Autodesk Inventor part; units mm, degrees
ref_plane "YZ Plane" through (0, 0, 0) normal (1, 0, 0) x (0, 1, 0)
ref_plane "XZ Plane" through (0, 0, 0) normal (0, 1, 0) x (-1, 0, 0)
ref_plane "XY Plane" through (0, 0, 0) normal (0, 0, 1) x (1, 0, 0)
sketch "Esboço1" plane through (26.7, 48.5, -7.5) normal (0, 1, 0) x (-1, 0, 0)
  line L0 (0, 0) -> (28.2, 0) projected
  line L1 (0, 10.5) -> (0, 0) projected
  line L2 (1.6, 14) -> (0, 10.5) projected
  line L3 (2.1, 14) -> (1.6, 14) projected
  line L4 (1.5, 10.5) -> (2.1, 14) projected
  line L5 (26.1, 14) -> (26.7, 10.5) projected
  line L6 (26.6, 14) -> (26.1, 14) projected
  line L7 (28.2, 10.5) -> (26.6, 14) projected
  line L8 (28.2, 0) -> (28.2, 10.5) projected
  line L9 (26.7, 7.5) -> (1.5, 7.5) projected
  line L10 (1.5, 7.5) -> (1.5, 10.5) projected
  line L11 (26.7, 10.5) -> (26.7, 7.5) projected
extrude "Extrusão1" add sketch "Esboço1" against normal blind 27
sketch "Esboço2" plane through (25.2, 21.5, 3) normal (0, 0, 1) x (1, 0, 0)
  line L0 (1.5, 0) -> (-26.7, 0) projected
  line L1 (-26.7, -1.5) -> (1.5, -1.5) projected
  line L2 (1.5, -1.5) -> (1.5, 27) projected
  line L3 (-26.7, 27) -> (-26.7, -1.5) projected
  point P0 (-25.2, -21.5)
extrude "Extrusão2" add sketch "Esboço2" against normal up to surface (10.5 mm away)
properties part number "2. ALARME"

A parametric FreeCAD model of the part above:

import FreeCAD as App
import Part
import Sketcher

doc = App.newDocument("Part")
body = doc.addObject("PartDesign::Body", "Body")

# Sketch on XZ plane
sketch1 = doc.addObject("Sketcher::SketchObject", "Sketch")
body.addObject(sketch1)
sketch1.AttachmentSupport = (doc.XZ_Plane, [""])
sketch1.MapMode = "FlatFace"
sketch1.AttachmentOffset = App.Placement(App.Vector(0, 0, -48.5), App.Rotation())
sketch1.addGeometry(Part.LineSegment(App.Vector(26.7, 3, 0), App.Vector(26.7, -7.5, 0)), False)
sketch1.addGeometry(Part.LineSegment(App.Vector(26.7, -7.5, 0), App.Vector(-1.5, -7.5, 0)), False)
sketch1.addGeometry(Part.LineSegment(App.Vector(-1.5, -7.5, 0), App.Vector(-1.5, 3, 0)), False)
sketch1.addGeometry(Part.LineSegment(App.Vector(-1.5, 3, 0), App.Vector(0.1, 6.5, 0)), False)
sketch1.addGeometry(Part.LineSegment(App.Vector(0.1, 6.5, 0), App.Vector(0.6, 6.5, 0)), False)
sketch1.addGeometry(Part.LineSegment(App.Vector(0.6, 6.5, 0), App.Vector(0, 3, 0)), False)
sketch1.addGeometry(Part.LineSegment(App.Vector(0, 3, 0), App.Vector(0, 0, 0)), False)
sketch1.addGeometry(Part.LineSegment(App.Vector(0, 0, 0), App.Vector(25.2, 0, 0)), False)
sketch1.addGeometry(Part.LineSegment(App.Vector(25.2, 0, 0), App.Vector(25.2, 3, 0)), False)
sketch1.addGeometry(Part.LineSegment(App.Vector(25.2, 3, 0), App.Vector(24.6, 6.5, 0)), False)
sketch1.addGeometry(Part.LineSegment(App.Vector(24.6, 6.5, 0), App.Vector(25.1, 6.5, 0)), False)
sketch1.addGeometry(Part.LineSegment(App.Vector(25.1, 6.5, 0), App.Vector(26.7, 3, 0)), False)
sketch1.addConstraint(Sketcher.Constraint("Coincident", 0, 2, 1, 1))
sketch1.addConstraint(Sketcher.Constraint("Coincident", 1, 2, 2, 1))
sketch1.addConstraint(Sketcher.Constraint("Coincident", 2, 2, 3, 1))
sketch1.addConstraint(Sketcher.Constraint("Coincident", 3, 2, 4, 1))
sketch1.addConstraint(Sketcher.Constraint("Coincident", 4, 2, 5, 1))
sketch1.addConstraint(Sketcher.Constraint("Coincident", 5, 2, 6, 1))
sketch1.addConstraint(Sketcher.Constraint("Coincident", 6, 2, 7, 1))
sketch1.addConstraint(Sketcher.Constraint("Coincident", 7, 2, 8, 1))
sketch1.addConstraint(Sketcher.Constraint("Coincident", 8, 2, 9, 1))
sketch1.addConstraint(Sketcher.Constraint("Coincident", 9, 2, 10, 1))
sketch1.addConstraint(Sketcher.Constraint("Coincident", 10, 2, 11, 1))
sketch1.addConstraint(Sketcher.Constraint("Coincident", 11, 2, 0, 1))
sketch1.addConstraint(Sketcher.Constraint("Vertical", 0))
sketch1.addConstraint(Sketcher.Constraint("Horizontal", 1))
sketch1.addConstraint(Sketcher.Constraint("Vertical", 2))
sketch1.addConstraint(Sketcher.Constraint("Horizontal", 4))
sketch1.addConstraint(Sketcher.Constraint("Vertical", 6))
sketch1.addConstraint(Sketcher.Constraint("Horizontal", 7))
sketch1.addConstraint(Sketcher.Constraint("Vertical", 8))
sketch1.addConstraint(Sketcher.Constraint("Horizontal", 10))
sketch1.addConstraint(Sketcher.Constraint("Coincident", 6, 2, -1, 1))
sketch1.addConstraint(Sketcher.Constraint("Horizontal", 2, 2, 5, 2))
sketch1.addConstraint(Sketcher.Constraint("Horizontal", 5, 2, 8, 2))
sketch1.addConstraint(Sketcher.Constraint("Horizontal", 4, 2, 9, 2))
sketch1.addConstraint(Sketcher.Constraint("Horizontal", 8, 2, 11, 2))
sketch1.addConstraint(Sketcher.Constraint("Equal", 4, 10))
sketch1.addConstraint(Sketcher.Constraint("Equal", 5, 9))
sketch1.addConstraint(Sketcher.Constraint("Equal", 3, 11))
sketch1.addConstraint(Sketcher.Constraint("DistanceY", 6, 2, 6, 1, 3.0))
sketch1.addConstraint(Sketcher.Constraint("DistanceX", 1, 2, 1, 1, 28.2))
sketch1.addConstraint(Sketcher.Constraint("DistanceX", 4, 1, 4, 2, 0.5))
sketch1.addConstraint(Sketcher.Constraint("DistanceX", 7, 1, 7, 2, 25.2))
sketch1.addConstraint(Sketcher.Constraint("DistanceY", 0, 2, 0, 1, 10.5))
sketch1.addConstraint(Sketcher.Constraint("DistanceY", 1, 2, 3, 2, 14.0))
sketch1.addConstraint(Sketcher.Constraint("DistanceX", 4, 2, 9, 2, 24.0))
pad1 = doc.addObject("PartDesign::Pad", "Pad")
body.addObject(pad1)
pad1.Profile = sketch1
pad1.Length = 27

# Sketch on XY plane
sketch2 = doc.addObject("Sketcher::SketchObject", "Sketch001")
body.addObject(sketch2)
sketch2.AttachmentSupport = (doc.XY_Plane, [""])
sketch2.MapMode = "FlatFace"
sketch2.AttachmentOffset = App.Placement(App.Vector(0, 0, 3), App.Rotation())
sketch2.addGeometry(Part.LineSegment(App.Vector(26.7, 20, 0), App.Vector(26.7, 21.5, 0)), False)
sketch2.addGeometry(Part.LineSegment(App.Vector(26.7, 21.5, 0), App.Vector(-1.5, 21.5, 0)), False)
sketch2.addGeometry(Part.LineSegment(App.Vector(-1.5, 21.5, 0), App.Vector(-1.5, 20, 0)), False)
sketch2.addGeometry(Part.LineSegment(App.Vector(-1.5, 20, 0), App.Vector(26.7, 20, 0)), False)
sketch2.addConstraint(Sketcher.Constraint("Coincident", 0, 2, 1, 1))
sketch2.addConstraint(Sketcher.Constraint("Coincident", 1, 2, 2, 1))
sketch2.addConstraint(Sketcher.Constraint("Coincident", 2, 2, 3, 1))
sketch2.addConstraint(Sketcher.Constraint("Coincident", 3, 2, 0, 1))
sketch2.addConstraint(Sketcher.Constraint("Vertical", 0))
sketch2.addConstraint(Sketcher.Constraint("Horizontal", 1))
sketch2.addConstraint(Sketcher.Constraint("Vertical", 2))
sketch2.addConstraint(Sketcher.Constraint("Horizontal", 3))
sketch2.addConstraint(Sketcher.Constraint("DistanceX", 1, 2, 1, 1, 28.2))
sketch2.addConstraint(Sketcher.Constraint("DistanceY", 0, 1, 0, 2, 1.5))
sketch2.addConstraint(Sketcher.Constraint("DistanceY", -1, 1, 2, 2, 20.0))
sketch2.addConstraint(Sketcher.Constraint("DistanceX", -1, 1, 0, 2, 26.7))
pad2 = doc.addObject("PartDesign::Pad", "Pad001")
body.addObject(pad2)
pad2.Profile = sketch2
pad2.Length = 10.5
pad2.Reversed = True

doc.recompute()
